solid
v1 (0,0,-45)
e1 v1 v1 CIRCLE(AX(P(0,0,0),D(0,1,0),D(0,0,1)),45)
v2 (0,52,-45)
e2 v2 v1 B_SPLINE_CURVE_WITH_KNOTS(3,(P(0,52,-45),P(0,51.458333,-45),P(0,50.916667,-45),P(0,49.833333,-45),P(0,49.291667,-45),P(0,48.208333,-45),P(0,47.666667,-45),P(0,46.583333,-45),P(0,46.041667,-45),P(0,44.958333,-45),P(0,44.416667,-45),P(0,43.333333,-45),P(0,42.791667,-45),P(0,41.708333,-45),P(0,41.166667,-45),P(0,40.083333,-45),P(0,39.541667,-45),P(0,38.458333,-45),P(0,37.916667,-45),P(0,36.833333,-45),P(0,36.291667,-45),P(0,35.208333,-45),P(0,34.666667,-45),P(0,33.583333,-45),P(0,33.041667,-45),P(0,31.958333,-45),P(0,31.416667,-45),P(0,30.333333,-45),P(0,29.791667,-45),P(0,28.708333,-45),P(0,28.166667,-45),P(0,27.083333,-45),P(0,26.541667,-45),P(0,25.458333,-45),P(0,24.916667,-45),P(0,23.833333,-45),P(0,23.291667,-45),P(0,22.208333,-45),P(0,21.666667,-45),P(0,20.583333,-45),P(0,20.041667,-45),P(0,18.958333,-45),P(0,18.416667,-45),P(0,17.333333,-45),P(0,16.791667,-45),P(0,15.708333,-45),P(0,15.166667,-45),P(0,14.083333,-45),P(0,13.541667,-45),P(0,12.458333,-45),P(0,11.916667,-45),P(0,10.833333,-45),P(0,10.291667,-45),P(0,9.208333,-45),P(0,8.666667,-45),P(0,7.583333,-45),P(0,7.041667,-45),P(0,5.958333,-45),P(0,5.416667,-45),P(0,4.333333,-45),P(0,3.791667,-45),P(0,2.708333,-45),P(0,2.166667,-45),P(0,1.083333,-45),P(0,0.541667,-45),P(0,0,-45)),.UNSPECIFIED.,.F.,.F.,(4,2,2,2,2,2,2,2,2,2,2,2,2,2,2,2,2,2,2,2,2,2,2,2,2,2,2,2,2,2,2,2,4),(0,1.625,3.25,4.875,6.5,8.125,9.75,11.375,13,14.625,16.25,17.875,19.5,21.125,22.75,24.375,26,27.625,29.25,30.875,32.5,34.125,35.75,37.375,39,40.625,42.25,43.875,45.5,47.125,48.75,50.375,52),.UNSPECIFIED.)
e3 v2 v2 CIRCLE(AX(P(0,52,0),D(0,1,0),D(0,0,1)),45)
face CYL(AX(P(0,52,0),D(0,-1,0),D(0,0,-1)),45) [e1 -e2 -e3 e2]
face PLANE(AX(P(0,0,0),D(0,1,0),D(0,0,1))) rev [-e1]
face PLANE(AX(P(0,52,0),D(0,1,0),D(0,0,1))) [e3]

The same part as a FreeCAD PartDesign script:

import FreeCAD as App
import Part
import Sketcher

V = App.Vector

doc = App.newDocument("Part")
body = doc.addObject("PartDesign::Body", "Body")

# Sketch on XZ plane
sketch1 = doc.addObject("Sketcher::SketchObject", "Sketch")
body.addObject(sketch1)
sketch1.AttachmentSupport = (doc.XZ_Plane, [""])
sketch1.MapMode = "FlatFace"
sketch1.addGeometry(Part.Circle(V(0, 0, 0), V(0, 0, 1), 45), False)
sketch1.addConstraint([
    Sketcher.Constraint("Coincident", 0, 3, -1, 1),
    Sketcher.Constraint("Diameter", 0, 90.0),
])
pad1 = doc.addObject("PartDesign::Pad", "Pad")
body.addObject(pad1)
pad1.Profile = sketch1
pad1.Length = 52
pad1.Reversed = True

doc.recompute()
